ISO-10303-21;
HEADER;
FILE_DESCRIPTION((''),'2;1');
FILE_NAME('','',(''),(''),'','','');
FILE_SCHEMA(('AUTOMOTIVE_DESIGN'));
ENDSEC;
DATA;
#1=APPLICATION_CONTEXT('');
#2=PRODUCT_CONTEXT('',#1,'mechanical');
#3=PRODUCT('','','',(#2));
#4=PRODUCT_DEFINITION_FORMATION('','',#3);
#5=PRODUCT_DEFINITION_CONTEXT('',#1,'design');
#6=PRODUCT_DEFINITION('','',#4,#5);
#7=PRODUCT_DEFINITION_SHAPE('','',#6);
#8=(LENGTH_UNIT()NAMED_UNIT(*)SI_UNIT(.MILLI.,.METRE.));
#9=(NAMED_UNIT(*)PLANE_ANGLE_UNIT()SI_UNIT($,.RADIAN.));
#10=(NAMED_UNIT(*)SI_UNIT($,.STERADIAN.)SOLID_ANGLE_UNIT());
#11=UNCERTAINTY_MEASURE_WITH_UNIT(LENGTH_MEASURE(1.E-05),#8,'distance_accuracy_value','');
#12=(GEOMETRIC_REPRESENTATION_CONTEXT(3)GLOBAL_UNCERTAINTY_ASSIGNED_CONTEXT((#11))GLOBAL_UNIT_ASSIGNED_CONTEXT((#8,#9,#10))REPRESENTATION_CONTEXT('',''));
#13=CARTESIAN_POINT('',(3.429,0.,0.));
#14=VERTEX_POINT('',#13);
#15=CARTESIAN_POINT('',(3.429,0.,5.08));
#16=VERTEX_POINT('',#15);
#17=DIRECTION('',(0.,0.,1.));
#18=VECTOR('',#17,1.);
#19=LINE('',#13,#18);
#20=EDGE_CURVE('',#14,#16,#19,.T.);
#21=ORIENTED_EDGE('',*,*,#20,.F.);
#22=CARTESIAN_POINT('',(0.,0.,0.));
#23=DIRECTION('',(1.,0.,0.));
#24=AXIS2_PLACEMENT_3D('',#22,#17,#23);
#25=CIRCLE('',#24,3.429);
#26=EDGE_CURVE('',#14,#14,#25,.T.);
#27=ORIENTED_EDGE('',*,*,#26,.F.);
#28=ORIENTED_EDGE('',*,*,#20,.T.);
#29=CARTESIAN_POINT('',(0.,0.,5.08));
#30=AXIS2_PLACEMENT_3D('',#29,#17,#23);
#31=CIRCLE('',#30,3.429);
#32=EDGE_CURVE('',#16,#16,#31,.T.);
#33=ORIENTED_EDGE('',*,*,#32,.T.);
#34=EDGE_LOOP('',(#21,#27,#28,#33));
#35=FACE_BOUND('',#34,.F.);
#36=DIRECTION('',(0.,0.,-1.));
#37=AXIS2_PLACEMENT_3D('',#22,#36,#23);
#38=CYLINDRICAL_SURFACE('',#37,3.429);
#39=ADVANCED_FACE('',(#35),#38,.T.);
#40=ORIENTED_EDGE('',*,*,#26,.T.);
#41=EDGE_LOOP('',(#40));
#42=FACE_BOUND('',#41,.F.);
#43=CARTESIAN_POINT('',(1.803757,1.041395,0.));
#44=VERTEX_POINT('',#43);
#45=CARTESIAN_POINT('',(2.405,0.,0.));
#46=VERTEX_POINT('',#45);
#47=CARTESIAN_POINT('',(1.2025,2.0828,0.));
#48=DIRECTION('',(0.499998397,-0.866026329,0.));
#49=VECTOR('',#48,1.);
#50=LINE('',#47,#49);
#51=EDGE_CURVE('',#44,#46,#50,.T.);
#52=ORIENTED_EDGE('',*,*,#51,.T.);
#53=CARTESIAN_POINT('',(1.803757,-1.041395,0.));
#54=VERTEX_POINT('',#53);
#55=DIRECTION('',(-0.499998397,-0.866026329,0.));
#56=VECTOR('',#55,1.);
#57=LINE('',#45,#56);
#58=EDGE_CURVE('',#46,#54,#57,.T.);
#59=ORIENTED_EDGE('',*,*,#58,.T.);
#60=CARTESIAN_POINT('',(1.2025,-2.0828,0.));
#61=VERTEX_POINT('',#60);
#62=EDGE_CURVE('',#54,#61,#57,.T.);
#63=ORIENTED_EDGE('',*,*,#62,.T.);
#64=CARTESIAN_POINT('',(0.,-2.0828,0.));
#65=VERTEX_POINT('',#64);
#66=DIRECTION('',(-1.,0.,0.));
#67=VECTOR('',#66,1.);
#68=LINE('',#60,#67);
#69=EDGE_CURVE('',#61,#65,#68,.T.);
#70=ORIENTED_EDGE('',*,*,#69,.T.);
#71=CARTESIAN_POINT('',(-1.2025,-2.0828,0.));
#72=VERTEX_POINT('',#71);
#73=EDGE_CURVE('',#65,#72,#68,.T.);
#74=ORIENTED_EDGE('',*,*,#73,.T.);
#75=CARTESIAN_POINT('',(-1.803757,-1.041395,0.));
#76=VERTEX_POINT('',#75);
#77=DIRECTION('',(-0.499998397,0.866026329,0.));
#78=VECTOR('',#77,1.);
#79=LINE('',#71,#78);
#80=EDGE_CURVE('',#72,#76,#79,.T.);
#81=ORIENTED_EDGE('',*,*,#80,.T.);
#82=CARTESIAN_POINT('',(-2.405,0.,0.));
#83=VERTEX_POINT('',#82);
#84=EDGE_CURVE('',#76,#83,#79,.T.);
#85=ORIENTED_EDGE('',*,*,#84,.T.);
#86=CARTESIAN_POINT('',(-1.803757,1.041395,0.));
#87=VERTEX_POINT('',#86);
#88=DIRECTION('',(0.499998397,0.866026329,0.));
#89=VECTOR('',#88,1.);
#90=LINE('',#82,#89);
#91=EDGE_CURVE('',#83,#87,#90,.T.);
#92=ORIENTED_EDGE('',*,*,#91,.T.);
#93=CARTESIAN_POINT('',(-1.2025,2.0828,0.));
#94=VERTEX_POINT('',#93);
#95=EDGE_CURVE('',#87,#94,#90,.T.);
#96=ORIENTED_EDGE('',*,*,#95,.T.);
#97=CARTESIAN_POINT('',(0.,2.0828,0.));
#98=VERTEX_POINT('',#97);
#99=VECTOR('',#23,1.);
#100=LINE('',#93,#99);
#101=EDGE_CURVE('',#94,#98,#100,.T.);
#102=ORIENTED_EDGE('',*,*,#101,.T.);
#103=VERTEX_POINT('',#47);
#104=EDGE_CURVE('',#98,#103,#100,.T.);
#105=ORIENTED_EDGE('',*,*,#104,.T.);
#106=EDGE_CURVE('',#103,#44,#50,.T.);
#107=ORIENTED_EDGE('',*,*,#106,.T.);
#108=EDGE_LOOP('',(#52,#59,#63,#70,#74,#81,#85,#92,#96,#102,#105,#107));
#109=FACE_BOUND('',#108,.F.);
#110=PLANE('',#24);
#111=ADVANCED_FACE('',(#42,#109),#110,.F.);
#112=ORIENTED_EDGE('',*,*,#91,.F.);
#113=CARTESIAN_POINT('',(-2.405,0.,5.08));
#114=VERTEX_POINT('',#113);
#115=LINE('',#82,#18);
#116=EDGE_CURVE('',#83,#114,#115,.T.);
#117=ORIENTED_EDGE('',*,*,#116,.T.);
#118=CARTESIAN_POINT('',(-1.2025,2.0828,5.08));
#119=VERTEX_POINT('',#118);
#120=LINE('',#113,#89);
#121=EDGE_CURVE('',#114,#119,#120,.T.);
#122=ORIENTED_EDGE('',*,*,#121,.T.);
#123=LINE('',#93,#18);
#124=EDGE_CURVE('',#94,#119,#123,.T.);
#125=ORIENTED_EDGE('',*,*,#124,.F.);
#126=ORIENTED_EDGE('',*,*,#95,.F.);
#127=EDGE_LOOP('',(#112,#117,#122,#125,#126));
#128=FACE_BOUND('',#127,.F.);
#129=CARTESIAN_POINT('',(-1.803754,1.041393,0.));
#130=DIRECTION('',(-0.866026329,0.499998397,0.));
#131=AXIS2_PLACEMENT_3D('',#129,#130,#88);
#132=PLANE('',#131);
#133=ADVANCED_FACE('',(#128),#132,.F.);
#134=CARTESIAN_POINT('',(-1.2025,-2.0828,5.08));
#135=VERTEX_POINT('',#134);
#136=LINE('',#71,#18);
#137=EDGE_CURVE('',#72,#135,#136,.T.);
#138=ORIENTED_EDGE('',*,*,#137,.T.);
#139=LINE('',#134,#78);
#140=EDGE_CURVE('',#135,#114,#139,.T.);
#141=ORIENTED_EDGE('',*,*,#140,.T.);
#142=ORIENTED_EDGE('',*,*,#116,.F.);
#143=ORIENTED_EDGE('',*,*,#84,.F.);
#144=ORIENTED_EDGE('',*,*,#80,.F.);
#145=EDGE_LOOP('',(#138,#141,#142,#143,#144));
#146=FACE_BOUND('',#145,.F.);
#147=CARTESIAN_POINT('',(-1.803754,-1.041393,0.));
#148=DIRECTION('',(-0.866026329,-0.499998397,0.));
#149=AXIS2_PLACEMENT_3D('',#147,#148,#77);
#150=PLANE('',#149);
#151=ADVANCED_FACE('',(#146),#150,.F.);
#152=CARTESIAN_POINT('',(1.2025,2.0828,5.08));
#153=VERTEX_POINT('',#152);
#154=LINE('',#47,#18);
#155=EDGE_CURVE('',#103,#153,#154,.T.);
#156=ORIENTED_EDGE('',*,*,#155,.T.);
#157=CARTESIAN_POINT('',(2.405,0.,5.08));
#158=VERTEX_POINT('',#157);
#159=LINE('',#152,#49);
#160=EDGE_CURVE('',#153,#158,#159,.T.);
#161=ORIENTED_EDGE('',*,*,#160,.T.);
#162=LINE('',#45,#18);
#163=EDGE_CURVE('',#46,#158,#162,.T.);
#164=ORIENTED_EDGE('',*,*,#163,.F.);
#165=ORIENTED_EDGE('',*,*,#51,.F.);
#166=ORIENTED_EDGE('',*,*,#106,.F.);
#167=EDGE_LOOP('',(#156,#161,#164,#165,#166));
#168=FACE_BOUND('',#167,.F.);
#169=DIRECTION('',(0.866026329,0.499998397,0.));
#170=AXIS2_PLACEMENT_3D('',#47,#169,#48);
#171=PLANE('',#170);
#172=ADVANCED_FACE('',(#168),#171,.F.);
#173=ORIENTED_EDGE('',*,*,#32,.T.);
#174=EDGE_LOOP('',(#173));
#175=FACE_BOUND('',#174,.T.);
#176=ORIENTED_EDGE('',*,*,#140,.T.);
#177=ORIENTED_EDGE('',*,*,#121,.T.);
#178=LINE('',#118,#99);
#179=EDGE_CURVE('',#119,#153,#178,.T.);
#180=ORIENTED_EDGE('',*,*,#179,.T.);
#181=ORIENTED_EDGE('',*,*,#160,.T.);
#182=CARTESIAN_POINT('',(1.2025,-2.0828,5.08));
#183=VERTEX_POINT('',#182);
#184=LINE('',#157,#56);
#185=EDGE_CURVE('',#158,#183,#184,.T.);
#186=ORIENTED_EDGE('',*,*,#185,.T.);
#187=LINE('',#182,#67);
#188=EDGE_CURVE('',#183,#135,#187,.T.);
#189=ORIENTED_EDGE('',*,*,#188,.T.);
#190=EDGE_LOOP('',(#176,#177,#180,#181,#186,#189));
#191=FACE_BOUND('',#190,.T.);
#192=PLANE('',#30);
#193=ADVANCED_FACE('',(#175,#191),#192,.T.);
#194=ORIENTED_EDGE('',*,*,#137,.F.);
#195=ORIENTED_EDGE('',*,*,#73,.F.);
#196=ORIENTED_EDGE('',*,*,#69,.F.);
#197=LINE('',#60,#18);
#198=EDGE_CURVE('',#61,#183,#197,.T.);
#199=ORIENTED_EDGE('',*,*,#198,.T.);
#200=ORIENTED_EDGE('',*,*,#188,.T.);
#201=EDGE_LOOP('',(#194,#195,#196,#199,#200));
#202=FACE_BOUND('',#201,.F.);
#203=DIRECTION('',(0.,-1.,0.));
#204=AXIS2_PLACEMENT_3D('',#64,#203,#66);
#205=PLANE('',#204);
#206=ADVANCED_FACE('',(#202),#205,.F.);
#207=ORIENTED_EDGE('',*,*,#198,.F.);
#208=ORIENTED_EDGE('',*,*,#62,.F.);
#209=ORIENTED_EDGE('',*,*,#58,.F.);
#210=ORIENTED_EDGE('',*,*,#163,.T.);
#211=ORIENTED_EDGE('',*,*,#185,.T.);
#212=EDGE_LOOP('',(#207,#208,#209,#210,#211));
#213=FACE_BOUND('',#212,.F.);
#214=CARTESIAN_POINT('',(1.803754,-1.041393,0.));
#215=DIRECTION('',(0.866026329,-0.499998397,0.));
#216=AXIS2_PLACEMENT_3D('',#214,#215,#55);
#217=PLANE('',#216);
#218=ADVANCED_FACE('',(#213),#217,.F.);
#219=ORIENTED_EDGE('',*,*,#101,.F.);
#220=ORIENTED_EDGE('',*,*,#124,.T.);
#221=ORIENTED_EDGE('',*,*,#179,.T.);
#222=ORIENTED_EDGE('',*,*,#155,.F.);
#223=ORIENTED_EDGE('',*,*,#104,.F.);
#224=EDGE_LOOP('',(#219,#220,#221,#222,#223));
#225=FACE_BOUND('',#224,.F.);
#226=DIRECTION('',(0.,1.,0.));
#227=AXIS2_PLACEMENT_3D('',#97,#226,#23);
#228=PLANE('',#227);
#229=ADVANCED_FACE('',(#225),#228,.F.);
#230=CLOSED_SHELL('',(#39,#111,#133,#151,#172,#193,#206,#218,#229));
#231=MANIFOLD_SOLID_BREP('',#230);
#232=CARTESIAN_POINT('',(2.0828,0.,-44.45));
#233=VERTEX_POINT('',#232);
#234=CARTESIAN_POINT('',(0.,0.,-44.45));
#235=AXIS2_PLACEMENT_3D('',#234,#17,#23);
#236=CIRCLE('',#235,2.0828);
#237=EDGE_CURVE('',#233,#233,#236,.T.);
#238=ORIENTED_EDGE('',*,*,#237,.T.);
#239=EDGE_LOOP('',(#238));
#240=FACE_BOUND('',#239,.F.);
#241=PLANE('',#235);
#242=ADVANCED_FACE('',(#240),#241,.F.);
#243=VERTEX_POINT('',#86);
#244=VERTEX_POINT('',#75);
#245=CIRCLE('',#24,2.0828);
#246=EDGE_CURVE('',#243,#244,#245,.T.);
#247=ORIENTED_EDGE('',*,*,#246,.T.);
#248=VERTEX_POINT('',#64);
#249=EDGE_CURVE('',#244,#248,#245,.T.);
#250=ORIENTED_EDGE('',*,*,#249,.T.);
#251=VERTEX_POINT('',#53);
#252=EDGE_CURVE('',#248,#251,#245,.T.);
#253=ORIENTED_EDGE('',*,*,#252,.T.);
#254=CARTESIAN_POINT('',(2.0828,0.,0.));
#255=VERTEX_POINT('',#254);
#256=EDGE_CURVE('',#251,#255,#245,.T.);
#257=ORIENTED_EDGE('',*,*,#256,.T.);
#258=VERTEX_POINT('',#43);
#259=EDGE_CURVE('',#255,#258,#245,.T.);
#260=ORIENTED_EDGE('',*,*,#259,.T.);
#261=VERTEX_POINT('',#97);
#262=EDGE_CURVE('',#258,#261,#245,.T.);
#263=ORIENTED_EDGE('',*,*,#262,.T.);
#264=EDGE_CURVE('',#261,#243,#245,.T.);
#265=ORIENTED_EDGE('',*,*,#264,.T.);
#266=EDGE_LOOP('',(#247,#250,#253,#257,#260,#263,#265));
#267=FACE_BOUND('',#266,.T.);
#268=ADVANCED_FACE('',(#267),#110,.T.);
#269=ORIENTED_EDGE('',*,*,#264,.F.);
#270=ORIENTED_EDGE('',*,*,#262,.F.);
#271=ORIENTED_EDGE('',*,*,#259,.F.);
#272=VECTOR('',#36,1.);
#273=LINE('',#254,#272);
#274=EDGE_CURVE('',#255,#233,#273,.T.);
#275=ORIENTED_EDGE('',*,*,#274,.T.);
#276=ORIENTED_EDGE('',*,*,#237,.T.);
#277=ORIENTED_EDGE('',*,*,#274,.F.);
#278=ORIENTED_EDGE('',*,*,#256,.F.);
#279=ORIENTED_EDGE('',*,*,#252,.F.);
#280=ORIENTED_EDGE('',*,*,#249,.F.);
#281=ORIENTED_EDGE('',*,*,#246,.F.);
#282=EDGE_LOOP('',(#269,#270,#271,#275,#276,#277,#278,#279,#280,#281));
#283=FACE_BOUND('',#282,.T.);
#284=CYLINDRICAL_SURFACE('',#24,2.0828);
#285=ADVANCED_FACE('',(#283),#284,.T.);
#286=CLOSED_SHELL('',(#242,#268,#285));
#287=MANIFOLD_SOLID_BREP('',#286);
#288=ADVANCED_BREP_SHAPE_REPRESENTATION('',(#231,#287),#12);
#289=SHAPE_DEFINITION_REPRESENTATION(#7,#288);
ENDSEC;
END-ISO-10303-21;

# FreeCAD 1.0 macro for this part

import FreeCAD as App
import Part
import Sketcher
Q = App.Units.Quantity


def add_polygon(sketch, points):
    """Adds a closed chain of lines whose ends are joined by coincident constraints."""
    first, n = sketch.GeometryCount, len(points)
    for a, b in zip(points, points[1:] + points[:1]):
        sketch.addGeometry(Part.LineSegment(App.Vector(*a, 0), App.Vector(*b, 0)), False)
    for i in range(n):
        sketch.addConstraint(Sketcher.Constraint("Coincident", first + i, 2, first + (i + 1) % n, 1))

doc = App.newDocument("Part")
params = doc.addObject("Spreadsheet::Sheet", "Params")
for row, (alias, value) in enumerate([
    ("sketch1_diameter", "0.164 in"),
    ("pad1_length", "1.75 in"),
    ("sketch2_diameter", "0.27 in"),
    ("pad2_length", "0.2 in"),
], start=1):
    params.set(f"A{row}", alias)
    params.set(f"B{row}", "=" + value)
    params.setAlias(f"B{row}", alias)

body = doc.addObject("PartDesign::Body", "Body")
body.AllowCompound = True

# Sketch on XY plane
sketch1 = body.newObject("Sketcher::SketchObject", "Sketch")
sketch1.AttachmentSupport = (doc.getObject("XY_Plane"), [""])
sketch1.MapMode = "FlatFace"
sketch1.addGeometry(Part.Circle(App.Vector(0, 0, 0), App.Vector(0, 0, 1), 2.0828), False)
sketch1.addConstraint(Sketcher.Constraint("Coincident", 0, 3, -1, 1))
sketch1.addConstraint(Sketcher.Constraint("Diameter", 0, Q("0.164 in")))
sketch1.setExpression("Constraints[1]", "Params.sketch1_diameter")
pad1 = body.newObject("PartDesign::Pad", "Pad")
pad1.Profile = sketch1
pad1.setExpression("Length", "Params.pad1_length")
pad1.Reversed = True

# Sketch on XY plane
sketch2 = body.newObject("Sketcher::SketchObject", "Sketch001")
sketch2.AttachmentSupport = (doc.getObject("XY_Plane"), [""])
sketch2.MapMode = "FlatFace"
sketch2.addGeometry(Part.Circle(App.Vector(0, 0, 0), App.Vector(0, 0, 1), 3.429), False)  # 0
add_polygon(sketch2, [(1.2025, 2.0828), (2.405, 0), (1.2025, -2.0828), (-1.2025, -2.0828), (-2.405, 0), (-1.2025, 2.0828)])  # lines 1-6
sketch2.addConstraint(Sketcher.Constraint("Horizontal", 3))
sketch2.addConstraint(Sketcher.Constraint("Horizontal", 6))
sketch2.addConstraint(Sketcher.Constraint("Coincident", 0, 3, -1, 1))
sketch2.addConstraint(Sketcher.Constraint("Symmetric", 1, 2, 4, 2, -1, 1))
sketch2.addConstraint(Sketcher.Constraint("Symmetric", 2, 2, 5, 2, -1, 1))
sketch2.addConstraint(Sketcher.Constraint("PointOnObject", 1, 2, -1))
sketch2.addConstraint(Sketcher.Constraint("Parallel", 1, 4))
sketch2.addConstraint(Sketcher.Constraint("Vertical", 3, 2, 5, 2))
sketch2.addConstraint(Sketcher.Constraint("Diameter", 0, Q("0.27 in")))
sketch2.addConstraint(Sketcher.Constraint("Angle", 1, Q("-60 deg")))
sketch2.addConstraint(Sketcher.Constraint("DistanceY", 3, 2, 5, 2, Q("0.164 in")))
sketch2.addConstraint(Sketcher.Constraint("DistanceX", 3, 2, 3, 1, 2.405))
sketch2.setExpression("Constraints[14]", "Params.sketch2_diameter")
pad2 = body.newObject("PartDesign::Pad", "Pad001")
pad2.Profile = sketch2
pad2.setExpression("Length", "Params.pad2_length")

doc.recompute()
